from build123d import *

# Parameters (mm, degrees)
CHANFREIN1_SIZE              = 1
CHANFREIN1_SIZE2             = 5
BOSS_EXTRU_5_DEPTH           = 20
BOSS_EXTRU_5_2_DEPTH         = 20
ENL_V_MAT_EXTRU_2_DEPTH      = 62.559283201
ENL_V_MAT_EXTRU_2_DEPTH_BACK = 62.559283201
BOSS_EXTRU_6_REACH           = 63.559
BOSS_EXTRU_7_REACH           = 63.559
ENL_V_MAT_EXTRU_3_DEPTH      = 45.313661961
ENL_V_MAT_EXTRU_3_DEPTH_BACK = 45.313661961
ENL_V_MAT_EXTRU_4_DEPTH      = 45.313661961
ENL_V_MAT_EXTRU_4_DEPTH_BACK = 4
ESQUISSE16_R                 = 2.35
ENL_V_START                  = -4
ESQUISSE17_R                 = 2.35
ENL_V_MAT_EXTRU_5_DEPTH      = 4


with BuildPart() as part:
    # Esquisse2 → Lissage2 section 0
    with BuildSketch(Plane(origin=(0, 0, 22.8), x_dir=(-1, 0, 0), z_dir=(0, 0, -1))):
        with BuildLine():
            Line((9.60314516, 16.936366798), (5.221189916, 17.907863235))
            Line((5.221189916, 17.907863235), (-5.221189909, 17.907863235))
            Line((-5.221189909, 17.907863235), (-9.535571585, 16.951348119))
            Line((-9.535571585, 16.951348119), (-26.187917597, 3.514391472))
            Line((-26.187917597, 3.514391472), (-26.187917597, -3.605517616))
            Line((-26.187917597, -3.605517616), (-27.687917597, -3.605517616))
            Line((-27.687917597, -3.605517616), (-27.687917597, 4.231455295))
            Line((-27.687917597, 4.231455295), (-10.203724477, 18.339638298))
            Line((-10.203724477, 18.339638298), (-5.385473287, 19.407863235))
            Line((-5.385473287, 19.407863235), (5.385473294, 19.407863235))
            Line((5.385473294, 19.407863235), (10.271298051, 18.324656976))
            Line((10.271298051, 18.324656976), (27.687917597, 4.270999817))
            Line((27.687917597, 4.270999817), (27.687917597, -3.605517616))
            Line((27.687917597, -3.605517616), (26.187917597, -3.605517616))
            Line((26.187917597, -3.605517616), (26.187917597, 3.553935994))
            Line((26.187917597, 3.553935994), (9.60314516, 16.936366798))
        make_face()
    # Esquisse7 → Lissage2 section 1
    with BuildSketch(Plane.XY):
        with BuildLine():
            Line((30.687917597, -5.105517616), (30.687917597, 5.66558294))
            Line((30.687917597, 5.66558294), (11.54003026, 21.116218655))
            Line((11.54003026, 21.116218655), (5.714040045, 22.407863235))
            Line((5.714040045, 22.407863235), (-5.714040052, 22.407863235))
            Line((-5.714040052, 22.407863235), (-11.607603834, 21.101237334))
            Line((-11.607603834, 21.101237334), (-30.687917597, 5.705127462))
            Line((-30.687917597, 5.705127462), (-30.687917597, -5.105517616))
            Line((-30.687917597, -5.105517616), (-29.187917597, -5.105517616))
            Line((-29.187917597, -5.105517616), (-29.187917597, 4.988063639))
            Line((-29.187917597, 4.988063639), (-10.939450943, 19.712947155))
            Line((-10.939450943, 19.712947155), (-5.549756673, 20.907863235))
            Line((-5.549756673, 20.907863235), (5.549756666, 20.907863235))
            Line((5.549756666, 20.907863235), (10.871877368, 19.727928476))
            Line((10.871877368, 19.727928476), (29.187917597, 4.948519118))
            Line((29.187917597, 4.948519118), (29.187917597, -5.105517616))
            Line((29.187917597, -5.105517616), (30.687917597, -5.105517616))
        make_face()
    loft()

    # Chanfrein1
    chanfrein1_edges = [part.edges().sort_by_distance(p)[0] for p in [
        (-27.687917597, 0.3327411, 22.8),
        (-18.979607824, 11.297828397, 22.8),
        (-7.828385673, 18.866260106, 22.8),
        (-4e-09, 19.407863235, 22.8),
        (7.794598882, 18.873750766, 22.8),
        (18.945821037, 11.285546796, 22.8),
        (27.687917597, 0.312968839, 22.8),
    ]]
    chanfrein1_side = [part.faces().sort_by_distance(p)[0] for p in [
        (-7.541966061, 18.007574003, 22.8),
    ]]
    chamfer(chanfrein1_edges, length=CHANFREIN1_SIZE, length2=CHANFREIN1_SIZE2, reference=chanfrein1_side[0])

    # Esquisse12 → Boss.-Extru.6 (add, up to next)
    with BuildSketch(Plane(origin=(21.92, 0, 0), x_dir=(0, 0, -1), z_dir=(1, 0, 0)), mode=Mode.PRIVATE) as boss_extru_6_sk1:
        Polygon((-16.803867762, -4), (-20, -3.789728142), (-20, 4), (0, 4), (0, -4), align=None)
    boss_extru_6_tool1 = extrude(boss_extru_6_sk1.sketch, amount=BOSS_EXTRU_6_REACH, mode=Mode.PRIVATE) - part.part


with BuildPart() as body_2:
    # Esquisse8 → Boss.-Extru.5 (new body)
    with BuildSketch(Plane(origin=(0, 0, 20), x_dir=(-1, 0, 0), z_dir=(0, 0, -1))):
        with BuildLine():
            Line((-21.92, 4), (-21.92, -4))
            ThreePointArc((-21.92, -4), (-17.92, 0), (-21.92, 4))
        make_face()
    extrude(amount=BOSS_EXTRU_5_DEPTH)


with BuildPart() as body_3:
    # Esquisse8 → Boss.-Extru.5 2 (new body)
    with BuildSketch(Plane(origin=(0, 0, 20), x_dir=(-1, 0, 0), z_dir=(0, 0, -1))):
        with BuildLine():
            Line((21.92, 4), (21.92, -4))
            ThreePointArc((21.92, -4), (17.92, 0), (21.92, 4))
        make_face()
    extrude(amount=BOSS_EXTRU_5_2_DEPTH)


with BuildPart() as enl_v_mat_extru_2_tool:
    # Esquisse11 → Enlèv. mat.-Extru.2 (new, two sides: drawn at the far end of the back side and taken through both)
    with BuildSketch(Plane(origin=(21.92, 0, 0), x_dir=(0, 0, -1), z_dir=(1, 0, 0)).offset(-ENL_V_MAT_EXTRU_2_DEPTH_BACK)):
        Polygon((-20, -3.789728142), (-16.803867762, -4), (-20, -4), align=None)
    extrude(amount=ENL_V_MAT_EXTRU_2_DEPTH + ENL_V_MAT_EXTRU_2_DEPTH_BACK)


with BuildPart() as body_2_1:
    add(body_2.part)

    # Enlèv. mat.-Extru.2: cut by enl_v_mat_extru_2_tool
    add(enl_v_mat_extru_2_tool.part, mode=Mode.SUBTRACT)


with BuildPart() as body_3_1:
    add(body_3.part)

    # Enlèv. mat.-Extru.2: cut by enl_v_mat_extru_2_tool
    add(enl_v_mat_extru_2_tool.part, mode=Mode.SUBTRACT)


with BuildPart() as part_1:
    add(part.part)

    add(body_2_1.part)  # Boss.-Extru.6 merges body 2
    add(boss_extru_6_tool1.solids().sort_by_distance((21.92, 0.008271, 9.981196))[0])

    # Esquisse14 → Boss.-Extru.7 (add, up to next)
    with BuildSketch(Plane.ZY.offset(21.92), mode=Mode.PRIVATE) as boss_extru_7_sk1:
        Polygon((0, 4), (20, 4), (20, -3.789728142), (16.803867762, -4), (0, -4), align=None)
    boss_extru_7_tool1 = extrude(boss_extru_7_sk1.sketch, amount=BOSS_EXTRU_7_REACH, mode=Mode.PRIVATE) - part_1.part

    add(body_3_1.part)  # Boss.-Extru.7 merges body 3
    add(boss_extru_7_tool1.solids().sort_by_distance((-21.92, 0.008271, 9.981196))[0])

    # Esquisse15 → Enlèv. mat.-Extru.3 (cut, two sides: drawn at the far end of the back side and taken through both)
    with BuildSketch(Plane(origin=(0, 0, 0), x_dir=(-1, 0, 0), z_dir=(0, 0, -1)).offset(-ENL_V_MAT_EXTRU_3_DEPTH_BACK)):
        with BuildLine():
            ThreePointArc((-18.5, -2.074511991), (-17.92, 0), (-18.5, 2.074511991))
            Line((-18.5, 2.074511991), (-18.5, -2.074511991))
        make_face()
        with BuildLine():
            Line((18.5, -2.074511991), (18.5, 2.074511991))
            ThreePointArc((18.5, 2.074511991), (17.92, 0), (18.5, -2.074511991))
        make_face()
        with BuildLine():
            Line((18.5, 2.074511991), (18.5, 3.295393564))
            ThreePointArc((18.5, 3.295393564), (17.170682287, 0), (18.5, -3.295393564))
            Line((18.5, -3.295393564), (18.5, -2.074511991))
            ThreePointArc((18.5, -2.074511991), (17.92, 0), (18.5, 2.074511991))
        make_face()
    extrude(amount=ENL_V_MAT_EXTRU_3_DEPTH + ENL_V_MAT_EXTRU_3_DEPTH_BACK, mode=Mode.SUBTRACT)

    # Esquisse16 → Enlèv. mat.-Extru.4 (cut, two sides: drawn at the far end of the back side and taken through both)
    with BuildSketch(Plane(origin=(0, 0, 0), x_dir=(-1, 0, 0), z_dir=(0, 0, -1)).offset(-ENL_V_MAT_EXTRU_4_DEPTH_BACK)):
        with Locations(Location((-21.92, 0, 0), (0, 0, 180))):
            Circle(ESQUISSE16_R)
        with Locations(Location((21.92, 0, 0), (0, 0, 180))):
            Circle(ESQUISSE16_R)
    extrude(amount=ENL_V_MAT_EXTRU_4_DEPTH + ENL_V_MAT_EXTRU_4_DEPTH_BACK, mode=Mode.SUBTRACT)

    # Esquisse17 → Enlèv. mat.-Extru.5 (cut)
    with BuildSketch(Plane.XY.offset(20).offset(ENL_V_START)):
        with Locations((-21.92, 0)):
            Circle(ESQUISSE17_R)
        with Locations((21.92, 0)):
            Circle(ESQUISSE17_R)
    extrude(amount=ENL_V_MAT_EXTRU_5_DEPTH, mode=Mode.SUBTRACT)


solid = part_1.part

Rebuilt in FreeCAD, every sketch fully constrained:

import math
import FreeCAD as App
import Part
import Sketcher
from FreeCAD import Vector
Q = App.Units.Quantity


def edges_at(feature, points):
    """Names of the edges that pass closest to the given points."""
    edges = feature.Shape.Edges
    near = lambda p: min(range(len(edges)), key=lambda i: edges[i].distToShape(Part.Vertex(*p))[0])
    return sorted({f"Edge{near(p) + 1}" for p in points})

doc = App.newDocument("Part")
params = doc.addObject("Spreadsheet::Sheet", "Params")
for row, (alias, value) in enumerate([
    ("sketch1_width", "1.5 mm"),
    ("sketch2_width", "1.5 mm"),
    ("chamfer_size", "1 mm"),
    ("chamfer_size2", "5 mm"),
    ("sketch3_radius", "4 mm"),
    ("pad1_length", "20 mm"),
    ("sketch4_radius", "4 mm"),
    ("pad2_length", "20 mm"),
    ("pad3_length", "62.559283 mm"),
    ("pad3_length2", "62.559283 mm"),
    ("sketch6_width", "8 mm"),
    ("sketch6_height", "20 mm"),
    ("sketch7_width", "8 mm"),
    ("sketch7_height", "20 mm"),
    ("sketch8_radius", "4 mm"),
    ("sketch9_diameter", "4.7 mm"),
    ("pocket2_length", "45.313662 mm"),
    ("pocket2_length2", "4 mm"),
    ("sketch10_diameter", "4.7 mm"),
    ("pocket3_length", "4 mm"),
], start=1):
    params.set(f"A{row}", alias)
    params.set(f"B{row}", "=" + value)
    params.setAlias(f"B{row}", alias)

body = doc.addObject("PartDesign::Body", "Body")

sketch1 = body.newObject("Sketcher::SketchObject", "Sketch")
sketch1.AttachmentSupport = (doc.getObject("XY_Plane"), [""])
sketch1.MapMode = "FlatFace"
sketch1.AttachmentOffset = App.Placement(Vector(0, 0, 22.8), App.Rotation())
sketch1.addGeometry(Part.LineSegment(Vector(-5.22119, 17.907863, 0), Vector(-9.603145, 16.936367, 0)), False)
sketch1.addGeometry(Part.LineSegment(Vector(-9.603145, 16.936367, 0), Vector(-26.187918, 3.553936, 0)), False)
sketch1.addGeometry(Part.LineSegment(Vector(-26.187918, 3.553936, 0), Vector(-26.187918, -3.605518, 0)), False)
sketch1.addGeometry(Part.LineSegment(Vector(-26.187918, -3.605518, 0), Vector(-27.687918, -3.605518, 0)), False)
sketch1.addGeometry(Part.LineSegment(Vector(-27.687918, -3.605518, 0), Vector(-27.687918, 4.271, 0)), False)
sketch1.addGeometry(Part.LineSegment(Vector(-27.687918, 4.271, 0), Vector(-10.271298, 18.324657, 0)), False)
sketch1.addGeometry(Part.LineSegment(Vector(-10.271298, 18.324657, 0), Vector(-5.385473, 19.407863, 0)), False)
sketch1.addGeometry(Part.LineSegment(Vector(-5.385473, 19.407863, 0), Vector(5.385473, 19.407863, 0)), False)
sketch1.addGeometry(Part.LineSegment(Vector(5.385473, 19.407863, 0), Vector(10.203724, 18.339638, 0)), False)
sketch1.addGeometry(Part.LineSegment(Vector(10.203724, 18.339638, 0), Vector(27.687918, 4.231455, 0)), False)
sketch1.addGeometry(Part.LineSegment(Vector(27.687918, 4.231455, 0), Vector(27.687918, -3.605518, 0)), False)
sketch1.addGeometry(Part.LineSegment(Vector(27.687918, -3.605518, 0), Vector(26.187918, -3.605518, 0)), False)
sketch1.addGeometry(Part.LineSegment(Vector(26.187918, -3.605518, 0), Vector(26.187918, 3.514391, 0)), False)
sketch1.addGeometry(Part.LineSegment(Vector(26.187918, 3.514391, 0), Vector(9.535572, 16.951348, 0)), False)
sketch1.addGeometry(Part.LineSegment(Vector(9.535572, 16.951348, 0), Vector(5.22119, 17.907863, 0)), False)
sketch1.addGeometry(Part.LineSegment(Vector(5.22119, 17.907863, 0), Vector(-5.22119, 17.907863, 0)), False)
sketch1.addConstraint(Sketcher.Constraint("Coincident", 0, 2, 1, 1))
sketch1.addConstraint(Sketcher.Constraint("Coincident", 1, 2, 2, 1))
sketch1.addConstraint(Sketcher.Constraint("Coincident", 2, 2, 3, 1))
sketch1.addConstraint(Sketcher.Constraint("Coincident", 3, 2, 4, 1))
sketch1.addConstraint(Sketcher.Constraint("Coincident", 4, 2, 5, 1))
sketch1.addConstraint(Sketcher.Constraint("Coincident", 5, 2, 6, 1))
sketch1.addConstraint(Sketcher.Constraint("Coincident", 6, 2, 7, 1))
sketch1.addConstraint(Sketcher.Constraint("Coincident", 7, 2, 8, 1))
sketch1.addConstraint(Sketcher.Constraint("Coincident", 8, 2, 9, 1))
sketch1.addConstraint(Sketcher.Constraint("Coincident", 9, 2, 10, 1))
sketch1.addConstraint(Sketcher.Constraint("Coincident", 10, 2, 11, 1))
sketch1.addConstraint(Sketcher.Constraint("Coincident", 11, 2, 12, 1))
sketch1.addConstraint(Sketcher.Constraint("Coincident", 12, 2, 13, 1))
sketch1.addConstraint(Sketcher.Constraint("Coincident", 13, 2, 14, 1))
sketch1.addConstraint(Sketcher.Constraint("Coincident", 14, 2, 15, 1))
sketch1.addConstraint(Sketcher.Constraint("Coincident", 15, 2, 0, 1))
sketch1.addConstraint(Sketcher.Constraint("Vertical", 2))
sketch1.addConstraint(Sketcher.Constraint("Horizontal", 3))
sketch1.addConstraint(Sketcher.Constraint("Vertical", 4))
sketch1.addConstraint(Sketcher.Constraint("Horizontal", 7))
sketch1.addConstraint(Sketcher.Constraint("Vertical", 10))
sketch1.addConstraint(Sketcher.Constraint("Horizontal", 11))
sketch1.addConstraint(Sketcher.Constraint("Vertical", 12))
sketch1.addConstraint(Sketcher.Constraint("Horizontal", 15))
sketch1.addConstraint(Sketcher.Constraint("Symmetric", 3, 2, 10, 2, -2))
sketch1.addConstraint(Sketcher.Constraint("Parallel", 1, 5))
sketch1.addConstraint(Sketcher.Constraint("Parallel", 0, 6))
sketch1.addConstraint(Sketcher.Constraint("Parallel", 9, 13))
sketch1.addConstraint(Sketcher.Constraint("Parallel", 8, 14))
sketch1.addConstraint(Sketcher.Constraint("Equal", 3, 11))
sketch1.addConstraint(Sketcher.Constraint("DistanceX", 3, 2, 3, 1, Q("1.5 mm")))
sketch1.addConstraint(Sketcher.Constraint("DistanceY", 14, 2, 7, 2, Q("1.5 mm")))
sketch1.addConstraint(Sketcher.Constraint("DistanceY", -1, 1, 4, 2, Q("4.271 mm")))
sketch1.addConstraint(Sketcher.Constraint("DistanceX", 15, 2, 15, 1, Q("10.44238 mm")))
sketch1.addConstraint(Sketcher.Constraint("DistanceY", 12, 1, 12, 2, Q("7.119909 mm")))
sketch1.addConstraint(Sketcher.Constraint("DistanceX", 5, 2, -1, 1, Q("10.271298 mm")))
sketch1.addConstraint(Sketcher.Constraint("DistanceY", 9, 2, 5, 2, Q("14.093202 mm")))
sketch1.addConstraint(Sketcher.Constraint("DistanceX", 7, 2, 13, 2, Q("4.150098 mm")))
sketch1.addConstraint(Sketcher.Constraint("Distance", 6, Q("5.00446 mm")))
sketch1.addConstraint(Sketcher.Constraint("Distance", 9, Q("22.466371 mm")))
sketch1.addConstraint(Sketcher.Constraint("Distance", 14, Q("4.419141 mm")))
sketch1.addConstraint(Sketcher.Constraint("DistanceX", 7, 1, 7, 2, Q("10.770947 mm")))
sketch1.addConstraint(Sketcher.Constraint("DistanceY", 2, 2, 2, 1, Q("7.159454 mm")))
sketch1.addConstraint(Sketcher.Constraint("DistanceY", 4, 1, 4, 2, Q("7.876517 mm")))
sketch1.addConstraint(Sketcher.Constraint("DistanceY", 10, 2, 10, 1, Q("7.836973 mm")))
sketch1.addConstraint(Sketcher.Constraint("DistanceY", -1, 1, 8, 2, Q("18.339638 mm")))
sketch1.addConstraint(Sketcher.Constraint("DistanceX", -1, 1, 13, 2, Q("9.535572 mm")))
sketch1.setExpression("Constraints[30]", "Params.sketch1_width")

sketch2 = body.newObject("Sketcher::SketchObject", "Sketch001")
sketch2.AttachmentSupport = (doc.getObject("XY_Plane"), [""])
sketch2.MapMode = "FlatFace"
sketch2.addGeometry(Part.LineSegment(Vector(30.687918, -5.105518, 0), Vector(30.687918, 5.665583, 0)), False)
sketch2.addGeometry(Part.LineSegment(Vector(30.687918, 5.665583, 0), Vector(11.54003, 21.116219, 0)), False)
sketch2.addGeometry(Part.LineSegment(Vector(11.54003, 21.116219, 0), Vector(5.71404, 22.407863, 0)), False)
sketch2.addGeometry(Part.LineSegment(Vector(5.71404, 22.407863, 0), Vector(-5.71404, 22.407863, 0)), False)
sketch2.addGeometry(Part.LineSegment(Vector(-5.71404, 22.407863, 0), Vector(-11.607604, 21.101237, 0)), False)
sketch2.addGeometry(Part.LineSegment(Vector(-11.607604, 21.101237, 0), Vector(-30.687918, 5.705127, 0)), False)
sketch2.addGeometry(Part.LineSegment(Vector(-30.687918, 5.705127, 0), Vector(-30.687918, -5.105518, 0)), False)
sketch2.addGeometry(Part.LineSegment(Vector(-30.687918, -5.105518, 0), Vector(-29.187918, -5.105518, 0)), False)
sketch2.addGeometry(Part.LineSegment(Vector(-29.187918, -5.105518, 0), Vector(-29.187918, 4.988064, 0)), False)
sketch2.addGeometry(Part.LineSegment(Vector(-29.187918, 4.988064, 0), Vector(-10.939451, 19.712947, 0)), False)
sketch2.addGeometry(Part.LineSegment(Vector(-10.939451, 19.712947, 0), Vector(-5.549757, 20.907863, 0)), False)
sketch2.addGeometry(Part.LineSegment(Vector(-5.549757, 20.907863, 0), Vector(5.549757, 20.907863, 0)), False)
sketch2.addGeometry(Part.LineSegment(Vector(5.549757, 20.907863, 0), Vector(10.871877, 19.727928, 0)), False)
sketch2.addGeometry(Part.LineSegment(Vector(10.871877, 19.727928, 0), Vector(29.187918, 4.948519, 0)), False)
sketch2.addGeometry(Part.LineSegment(Vector(29.187918, 4.948519, 0), Vector(29.187918, -5.105518, 0)), False)
sketch2.addGeometry(Part.LineSegment(Vector(29.187918, -5.105518, 0), Vector(30.687918, -5.105518, 0)), False)
sketch2.addConstraint(Sketcher.Constraint("Coincident", 0, 2, 1, 1))
sketch2.addConstraint(Sketcher.Constraint("Coincident", 1, 2, 2, 1))
sketch2.addConstraint(Sketcher.Constraint("Coincident", 2, 2, 3, 1))
sketch2.addConstraint(Sketcher.Constraint("Coincident", 3, 2, 4, 1))
sketch2.addConstraint(Sketcher.Constraint("Coincident", 4, 2, 5, 1))
sketch2.addConstraint(Sketcher.Constraint("Coincident", 5, 2, 6, 1))
sketch2.addConstraint(Sketcher.Constraint("Coincident", 6, 2, 7, 1))
sketch2.addConstraint(Sketcher.Constraint("Coincident", 7, 2, 8, 1))
sketch2.addConstraint(Sketcher.Constraint("Coincident", 8, 2, 9, 1))
sketch2.addConstraint(Sketcher.Constraint("Coincident", 9, 2, 10, 1))
sketch2.addConstraint(Sketcher.Constraint("Coincident", 10, 2, 11, 1))
sketch2.addConstraint(Sketcher.Constraint("Coincident", 11, 2, 12, 1))
sketch2.addConstraint(Sketcher.Constraint("Coincident", 12, 2, 13, 1))
sketch2.addConstraint(Sketcher.Constraint("Coincident", 13, 2, 14, 1))
sketch2.addConstraint(Sketcher.Constraint("Coincident", 14, 2, 15, 1))
sketch2.addConstraint(Sketcher.Constraint("Coincident", 15, 2, 0, 1))
sketch2.addConstraint(Sketcher.Constraint("Vertical", 0))
sketch2.addConstraint(Sketcher.Constraint("Horizontal", 3))
sketch2.addConstraint(Sketcher.Constraint("Vertical", 6))
sketch2.addConstraint(Sketcher.Constraint("Horizontal", 7))
sketch2.addConstraint(Sketcher.Constraint("Vertical", 8))
sketch2.addConstraint(Sketcher.Constraint("Horizontal", 11))
sketch2.addConstraint(Sketcher.Constraint("Vertical", 14))
sketch2.addConstraint(Sketcher.Constraint("Horizontal", 15))
sketch2.addConstraint(Sketcher.Constraint("Symmetric", 7, 2, 14, 2, -2))
sketch2.addConstraint(Sketcher.Constraint("Parallel", 5, 9))
sketch2.addConstraint(Sketcher.Constraint("Parallel", 4, 10))
sketch2.addConstraint(Sketcher.Constraint("Parallel", 2, 12))
sketch2.addConstraint(Sketcher.Constraint("Parallel", 1, 13))
sketch2.addConstraint(Sketcher.Constraint("Equal", 7, 15))
sketch2.addConstraint(Sketcher.Constraint("DistanceX", 7, 1, 7, 2, Q("1.5 mm")))
sketch2.addConstraint(Sketcher.Constraint("DistanceY", 10, 2, 3, 2, Q("1.5 mm")))
sketch2.addConstraint(Sketcher.Constraint("DistanceY", 0, 1, 0, 2, Q("10.771101 mm")))
sketch2.addConstraint(Sketcher.Constraint("DistanceX", 3, 2, 3, 1, Q("11.42808 mm")))
sketch2.addConstraint(Sketcher.Constraint("DistanceY", 8, 1, 8, 2, Q("10.093581 mm")))
sketch2.addConstraint(Sketcher.Constraint("DistanceY", 8, 2, 3, 2, Q("17.4198 mm")))
sketch2.addConstraint(Sketcher.Constraint("DistanceY", 13, 2, 1, 2, Q("16.1677 mm")))
sketch2.addConstraint(Sketcher.Constraint("Distance", 1, Q("24.604141 mm")))
sketch2.addConstraint(Sketcher.Constraint("Distance", 4, Q("6.036668 mm")))
sketch2.addConstraint(Sketcher.Constraint("Distance", 5, Q("24.517312 mm")))
sketch2.addConstraint(Sketcher.Constraint("Distance", 12, Q("5.45135 mm")))
sketch2.addConstraint(Sketcher.Constraint("DistanceX", 11, 1, 11, 2, Q("11.099513 mm")))
sketch2.addConstraint(Sketcher.Constraint("DistanceY", 6, 2, 6, 1, Q("10.810645 mm")))
sketch2.addConstraint(Sketcher.Constraint("DistanceY", 14, 2, 14, 1, Q("10.054037 mm")))
sketch2.addConstraint(Sketcher.Constraint("DistanceX", -1, 1, 1, 2, Q("11.54003 mm")))
sketch2.addConstraint(Sketcher.Constraint("DistanceY", -1, 1, 1, 2, Q("21.116219 mm")))
sketch2.addConstraint(Sketcher.Constraint("DistanceX", -1, 1, 2, 2, Q("5.71404 mm")))
sketch2.setExpression("Constraints[30]", "Params.sketch2_width")

additiveloft = body.newObject("PartDesign::AdditiveLoft", "AdditiveLoft")
additiveloft.Profile = sketch1
additiveloft.Sections = [sketch2]
doc.recompute()

chamfer = body.newObject("PartDesign::Chamfer", "Chamfer")
chamfer.Base = (additiveloft, edges_at(additiveloft, [
    (-27.688, 0.333, 22.8),
    (-18.98, 11.298, 22.8),
    (-7.828, 18.866, 22.8),
    (0, 19.408, 22.8),
    (7.795, 18.874, 22.8),
    (18.946, 11.286, 22.8),
    (27.688, 0.313, 22.8),
]))
chamfer.ChamferType = "Two distances"
chamfer.setExpression("Size", "Params.chamfer_size")
chamfer.setExpression("Size2", "Params.chamfer_size2")
body2 = doc.addObject("PartDesign::Body", "Body001")

sketch3 = body2.newObject("Sketcher::SketchObject", "Sketch002")
sketch3.AttachmentSupport = (doc.getObject("XY_Plane001"), [""])
sketch3.MapMode = "FlatFace"
sketch3.AttachmentOffset = App.Placement(Vector(0, 0, 20), App.Rotation())
sketch3.addGeometry(Part.LineSegment(Vector(21.92, 4, 0), Vector(21.92, -4, 0)), False)
sketch3.addGeometry(Part.ArcOfCircle(Part.Circle(Vector(21.92, 0, 0), Vector(0, 0, 1), 4), math.radians(90), math.radians(270)), False)
sketch3.addConstraint(Sketcher.Constraint("Coincident", 0, 1, 1, 1))
sketch3.addConstraint(Sketcher.Constraint("Coincident", 1, 2, 0, 2))
sketch3.addConstraint(Sketcher.Constraint("Vertical", 0))
sketch3.addConstraint(Sketcher.Constraint("PointOnObject", 1, 3, -1))
sketch3.addConstraint(Sketcher.Constraint("Vertical", 1, 3, 0, 1))
sketch3.addConstraint(Sketcher.Constraint("Radius", 1, Q("4 mm")))
sketch3.addConstraint(Sketcher.Constraint("DistanceX", -1, 1, 1, 3, Q("21.92 mm")))
sketch3.setExpression("Constraints[5]", "Params.sketch3_radius")
pad1 = body2.newObject("PartDesign::Pad", "Pad")
pad1.Profile = sketch3
pad1.setExpression("Length", "Params.pad1_length")
pad1.Reversed = True
body3 = doc.addObject("PartDesign::Body", "Body002")

sketch4 = body3.newObject("Sketcher::SketchObject", "Sketch003")
sketch4.AttachmentSupport = (doc.getObject("XY_Plane002"), [""])
sketch4.MapMode = "FlatFace"
sketch4.AttachmentOffset = App.Placement(Vector(0, 0, 20), App.Rotation())
sketch4.addGeometry(Part.LineSegment(Vector(-21.92, -4, 0), Vector(-21.92, 4, 0)), False)
sketch4.addGeometry(Part.ArcOfCircle(Part.Circle(Vector(-21.92, 0, 0), Vector(0, 0, 1), 4), math.radians(-90), math.radians(90)), False)
sketch4.addConstraint(Sketcher.Constraint("Coincident", 0, 1, 1, 1))
sketch4.addConstraint(Sketcher.Constraint("Coincident", 1, 2, 0, 2))
sketch4.addConstraint(Sketcher.Constraint("Vertical", 0))
sketch4.addConstraint(Sketcher.Constraint("PointOnObject", 1, 3, -1))
sketch4.addConstraint(Sketcher.Constraint("Vertical", 1, 3, 0, 1))
sketch4.addConstraint(Sketcher.Constraint("Radius", 1, Q("4 mm")))
sketch4.addConstraint(Sketcher.Constraint("DistanceX", 1, 3, -1, 1, Q("21.92 mm")))
sketch4.setExpression("Constraints[5]", "Params.sketch4_radius")
pad2 = body3.newObject("PartDesign::Pad", "Pad001")
pad2.Profile = sketch4
pad2.setExpression("Length", "Params.pad2_length")
pad2.Reversed = True
body4 = doc.addObject("PartDesign::Body", "Body003")

sketch5 = body4.newObject("Sketcher::SketchObject", "Sketch004")
sketch5.AttachmentSupport = (doc.getObject("YZ_Plane003"), [""])
sketch5.MapMode = "FlatFace"
sketch5.AttachmentOffset = App.Placement(Vector(0, 0, 21.92), App.Rotation())
sketch5.addGeometry(Part.LineSegment(Vector(-4, 16.803868, 0), Vector(-3.789728, 20, 0)), False)
sketch5.addGeometry(Part.LineSegment(Vector(-3.789728, 20, 0), Vector(-4, 20, 0)), False)
sketch5.addGeometry(Part.LineSegment(Vector(-4, 20, 0), Vector(-4, 16.803868, 0)), False)
sketch5.addConstraint(Sketcher.Constraint("Coincident", 0, 2, 1, 1))
sketch5.addConstraint(Sketcher.Constraint("Coincident", 1, 2, 2, 1))
sketch5.addConstraint(Sketcher.Constraint("Coincident", 2, 2, 0, 1))
sketch5.addConstraint(Sketcher.Constraint("Horizontal", 1))
sketch5.addConstraint(Sketcher.Constraint("Vertical", 2))
sketch5.addConstraint(Sketcher.Constraint("DistanceY", -1, 1, 0, 2, Q("20 mm")))
sketch5.addConstraint(Sketcher.Constraint("DistanceX", 1, 2, -1, 1, Q("4 mm")))
sketch5.addConstraint(Sketcher.Constraint("DistanceX", 1, 2, 1, 1, Q("0.210272 mm")))
sketch5.addConstraint(Sketcher.Constraint("Distance", 0, Q("3.203042 mm")))
pad3 = body4.newObject("PartDesign::Pad", "Pad002")
pad3.Profile = sketch5
pad3.Type = "TwoLengths"
pad3.setExpression("Length", "Params.pad3_length")
pad3.setExpression("Length2", "Params.pad3_length2")
doc.recompute()

body5 = doc.addObject("PartDesign::Body", "Body004")
body5.BaseFeature = body4
boolean = body2.newObject("PartDesign::Boolean", "Boolean")
boolean.Type = "Cut"
boolean.addObjects([body5])
doc.recompute()

boolean2 = body3.newObject("PartDesign::Boolean", "Boolean001")
boolean2.Type = "Cut"
boolean2.addObjects([body4])
body.AllowCompound = True
doc.recompute()

boolean3 = body.newObject("PartDesign::Boolean", "Boolean002")
boolean3.Type = "Fuse"
boolean3.addObjects([body2])

sketch6 = body.newObject("Sketcher::SketchObject", "Sketch005")
sketch6.AttachmentSupport = (doc.getObject("YZ_Plane"), [""])
sketch6.MapMode = "FlatFace"
sketch6.AttachmentOffset = App.Placement(Vector(0, 0, 21.92), App.Rotation())
sketch6.addGeometry(Part.LineSegment(Vector(-3.789728, 20, 0), Vector(-4, 16.803868, 0)), False)
sketch6.addGeometry(Part.LineSegment(Vector(-4, 16.803868, 0), Vector(-4, 0, 0)), False)
sketch6.addGeometry(Part.LineSegment(Vector(-4, 0, 0), Vector(4, 0, 0)), False)
sketch6.addGeometry(Part.LineSegment(Vector(4, 0, 0), Vector(4, 20, 0)), False)
sketch6.addGeometry(Part.LineSegment(Vector(4, 20, 0), Vector(-3.789728, 20, 0)), False)
sketch6.addConstraint(Sketcher.Constraint("Coincident", 0, 2, 1, 1))
sketch6.addConstraint(Sketcher.Constraint("Coincident", 1, 2, 2, 1))
sketch6.addConstraint(Sketcher.Constraint("Coincident", 2, 2, 3, 1))
sketch6.addConstraint(Sketcher.Constraint("Coincident", 3, 2, 4, 1))
sketch6.addConstraint(Sketcher.Constraint("Coincident", 4, 2, 0, 1))
sketch6.addConstraint(Sketcher.Constraint("Vertical", 1))
sketch6.addConstraint(Sketcher.Constraint("Horizontal", 2))
sketch6.addConstraint(Sketcher.Constraint("Vertical", 3))
sketch6.addConstraint(Sketcher.Constraint("Horizontal", 4))
sketch6.addConstraint(Sketcher.Constraint("Symmetric", 1, 2, 2, 2, -1, 1))
sketch6.addConstraint(Sketcher.Constraint("DistanceX", 2, 1, 2, 2, Q("8 mm")))
sketch6.addConstraint(Sketcher.Constraint("DistanceY", 3, 1, 3, 2, Q("20 mm")))
sketch6.addConstraint(Sketcher.Constraint("DistanceX", 4, 2, 4, 1, Q("7.789728 mm")))
sketch6.addConstraint(Sketcher.Constraint("Distance", 0, Q("3.203042 mm")))
sketch6.setExpression("Constraints[10]", "Params.sketch6_width")
sketch6.setExpression("Constraints[11]", "Params.sketch6_height")
pad4 = body.newObject("PartDesign::Pad", "Pad003")
pad4.Profile = sketch6
pad4.Type = "UpToFirst"
doc.recompute()

boolean4 = body.newObject("PartDesign::Boolean", "Boolean003")
boolean4.Type = "Fuse"
boolean4.addObjects([body3])

sketch7 = body.newObject("Sketcher::SketchObject", "Sketch006")
sketch7.AttachmentSupport = (doc.getObject("YZ_Plane"), [""])
sketch7.MapMode = "FlatFace"
sketch7.AttachmentOffset = App.Placement(Vector(0, 0, -21.92), App.Rotation())
sketch7.addGeometry(Part.LineSegment(Vector(4, 20, 0), Vector(4, 0, 0)), False)
sketch7.addGeometry(Part.LineSegment(Vector(4, 0, 0), Vector(-4, 0, 0)), False)
sketch7.addGeometry(Part.LineSegment(Vector(-4, 0, 0), Vector(-4, 16.803868, 0)), False)
sketch7.addGeometry(Part.LineSegment(Vector(-4, 16.803868, 0), Vector(-3.789728, 20, 0)), False)
sketch7.addGeometry(Part.LineSegment(Vector(-3.789728, 20, 0), Vector(4, 20, 0)), False)
sketch7.addConstraint(Sketcher.Constraint("Coincident", 0, 2, 1, 1))
sketch7.addConstraint(Sketcher.Constraint("Coincident", 1, 2, 2, 1))
sketch7.addConstraint(Sketcher.Constraint("Coincident", 2, 2, 3, 1))
sketch7.addConstraint(Sketcher.Constraint("Coincident", 3, 2, 4, 1))
sketch7.addConstraint(Sketcher.Constraint("Coincident", 4, 2, 0, 1))
sketch7.addConstraint(Sketcher.Constraint("Vertical", 0))
sketch7.addConstraint(Sketcher.Constraint("Horizontal", 1))
sketch7.addConstraint(Sketcher.Constraint("Vertical", 2))
sketch7.addConstraint(Sketcher.Constraint("Horizontal", 4))
sketch7.addConstraint(Sketcher.Constraint("Symmetric", 0, 2, 1, 2, -1, 1))
sketch7.addConstraint(Sketcher.Constraint("DistanceX", 1, 2, 1, 1, Q("8 mm")))
sketch7.addConstraint(Sketcher.Constraint("DistanceY", 0, 2, 0, 1, Q("20 mm")))
sketch7.addConstraint(Sketcher.Constraint("DistanceX", 4, 1, 4, 2, Q("7.789728 mm")))
sketch7.addConstraint(Sketcher.Constraint("Distance", 3, Q("3.203042 mm")))
sketch7.setExpression("Constraints[10]", "Params.sketch7_width")
sketch7.setExpression("Constraints[11]", "Params.sketch7_height")
pad5 = body.newObject("PartDesign::Pad", "Pad004")
pad5.Profile = sketch7
pad5.Type = "UpToFirst"
pad5.Reversed = True

sketch8 = body.newObject("Sketcher::SketchObject", "Sketch007")
sketch8.AttachmentSupport = (doc.getObject("XY_Plane"), [""])
sketch8.MapMode = "FlatFace"
sketch8.addGeometry(Part.ArcOfCircle(Part.Circle(Vector(21.92, 0, 0), Vector(0, 0, 1), 4), math.radians(148.759735), math.radians(211.240265)), False)
sketch8.addGeometry(Part.LineSegment(Vector(18.5, 2.074512, 0), Vector(18.5, -2.074512, 0)), False)
sketch8.addGeometry(Part.ArcOfCircle(Part.Circle(Vector(-21.92, 0, 0), Vector(0, 0, 1), 4.749318), math.radians(-43.936979), math.radians(43.936979)), False)
sketch8.addGeometry(Part.LineSegment(Vector(-18.5, -3.295394, 0), Vector(-18.5, 3.295394, 0)), False)
sketch8.addConstraint(Sketcher.Constraint("Coincident", 0, 1, 1, 1))
sketch8.addConstraint(Sketcher.Constraint("Coincident", 1, 2, 0, 2))
sketch8.addConstraint(Sketcher.Constraint("Coincident", 2, 1, 3, 1))
sketch8.addConstraint(Sketcher.Constraint("Coincident", 3, 2, 2, 2))
sketch8.addConstraint(Sketcher.Constraint("Vertical", 1))
sketch8.addConstraint(Sketcher.Constraint("Vertical", 3))
sketch8.addConstraint(Sketcher.Constraint("Symmetric", 0, 3, 2, 3, -1, 1))
sketch8.addConstraint(Sketcher.Constraint("PointOnObject", 0, 3, -1))
sketch8.addConstraint(Sketcher.Constraint("Radius", 0, Q("4 mm")))
sketch8.addConstraint(Sketcher.Constraint("DistanceX", 2, 1, 1, 2, Q("37 mm")))
sketch8.addConstraint(Sketcher.Constraint("DistanceX", -1, 1, 0, 1, Q("18.5 mm")))
sketch8.addConstraint(Sketcher.Constraint("DistanceX", -1, 1, 0, 3, Q("21.92 mm")))
sketch8.addConstraint(Sketcher.Constraint("Radius", 2, Q("4.749318 mm")))
sketch8.setExpression("Constraints[8]", "Params.sketch8_radius")
pocket1 = body.newObject("PartDesign::Pocket", "Pocket")
pocket1.Profile = sketch8
pocket1.Type = "ThroughAll"
pocket1.Midplane = True

sketch9 = body.newObject("Sketcher::SketchObject", "Sketch008")
sketch9.AttachmentSupport = (doc.getObject("XY_Plane"), [""])
sketch9.MapMode = "FlatFace"
sketch9.addGeometry(Part.Circle(Vector(21.92, 0, 0), Vector(0, 0, 1), 2.35), False)
sketch9.addGeometry(Part.Circle(Vector(-21.92, 0, 0), Vector(0, 0, 1), 2.35), False)
sketch9.addConstraint(Sketcher.Constraint("Equal", 0, 1))
sketch9.addConstraint(Sketcher.Constraint("Symmetric", 0, 3, 1, 3, -1, 1))
sketch9.addConstraint(Sketcher.Constraint("PointOnObject", 0, 3, -1))
sketch9.addConstraint(Sketcher.Constraint("Diameter", 0, Q("4.7 mm")))
sketch9.addConstraint(Sketcher.Constraint("DistanceX", -1, 1, 0, 3, Q("21.92 mm")))
sketch9.setExpression("Constraints[3]", "Params.sketch9_diameter")
pocket2 = body.newObject("PartDesign::Pocket", "Pocket001")
pocket2.Profile = sketch9
pocket2.Type = "TwoLengths"
pocket2.setExpression("Length", "Params.pocket2_length")
pocket2.setExpression("Length2", "Params.pocket2_length2")

sketch10 = body.newObject("Sketcher::SketchObject", "Sketch009")
sketch10.AttachmentSupport = (doc.getObject("XY_Plane"), [""])
sketch10.MapMode = "FlatFace"
sketch10.AttachmentOffset = App.Placement(Vector(0, 0, 16), App.Rotation())
sketch10.addGeometry(Part.Circle(Vector(-21.92, 0, 0), Vector(0, 0, 1), 2.35), False)
sketch10.addGeometry(Part.Circle(Vector(21.92, 0, 0), Vector(0, 0, 1), 2.35), False)
sketch10.addConstraint(Sketcher.Constraint("Equal", 0, 1))
sketch10.addConstraint(Sketcher.Constraint("Symmetric", 0, 3, 1, 3, -1, 1))
sketch10.addConstraint(Sketcher.Constraint("PointOnObject", 0, 3, -1))
sketch10.addConstraint(Sketcher.Constraint("Diameter", 0, Q("4.7 mm")))
sketch10.addConstraint(Sketcher.Constraint("DistanceX", 0, 3, -1, 1, Q("21.92 mm")))
sketch10.setExpression("Constraints[3]", "Params.sketch10_diameter")
pocket3 = body.newObject("PartDesign::Pocket", "Pocket002")
pocket3.Profile = sketch10
pocket3.setExpression("Length", "Params.pocket3_length")
pocket3.Reversed = True

doc.recompute()
